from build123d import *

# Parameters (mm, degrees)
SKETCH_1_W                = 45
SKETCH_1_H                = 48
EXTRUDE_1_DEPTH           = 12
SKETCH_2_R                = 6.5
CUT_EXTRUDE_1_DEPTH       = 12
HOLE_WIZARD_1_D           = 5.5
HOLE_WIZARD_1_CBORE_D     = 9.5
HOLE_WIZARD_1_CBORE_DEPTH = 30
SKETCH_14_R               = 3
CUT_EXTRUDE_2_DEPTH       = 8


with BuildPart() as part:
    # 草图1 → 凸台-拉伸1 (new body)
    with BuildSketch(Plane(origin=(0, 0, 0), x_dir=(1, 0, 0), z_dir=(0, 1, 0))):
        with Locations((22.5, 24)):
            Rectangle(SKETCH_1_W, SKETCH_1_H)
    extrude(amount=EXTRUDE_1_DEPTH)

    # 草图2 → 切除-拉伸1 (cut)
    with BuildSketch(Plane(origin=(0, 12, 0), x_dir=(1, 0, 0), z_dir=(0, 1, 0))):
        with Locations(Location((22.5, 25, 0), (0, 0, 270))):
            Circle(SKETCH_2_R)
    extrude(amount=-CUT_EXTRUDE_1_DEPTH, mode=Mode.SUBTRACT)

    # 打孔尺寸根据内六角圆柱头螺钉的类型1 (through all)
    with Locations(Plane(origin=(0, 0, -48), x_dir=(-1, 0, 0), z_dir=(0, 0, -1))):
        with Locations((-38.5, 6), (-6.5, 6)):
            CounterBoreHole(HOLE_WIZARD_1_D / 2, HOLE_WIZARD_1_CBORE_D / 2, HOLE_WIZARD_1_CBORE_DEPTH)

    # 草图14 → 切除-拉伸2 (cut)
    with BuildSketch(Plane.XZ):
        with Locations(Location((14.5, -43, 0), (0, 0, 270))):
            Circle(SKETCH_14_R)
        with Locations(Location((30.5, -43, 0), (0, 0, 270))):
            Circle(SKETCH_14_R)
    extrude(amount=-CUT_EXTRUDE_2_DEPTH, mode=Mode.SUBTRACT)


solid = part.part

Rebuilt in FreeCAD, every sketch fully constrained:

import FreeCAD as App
import Part
import Sketcher

V = App.Vector
Q = App.Units.Quantity

doc = App.newDocument("Part")
body = doc.addObject("PartDesign::Body", "Body")

# Sketch on XZ plane
sketch1 = body.newObject("Sketcher::SketchObject", "Sketch")
sketch1.AttachmentSupport = (doc.getObject("XZ_Plane"), [""])
sketch1.MapMode = "FlatFace"
sketch1.addGeometry([
    Part.LineSegment(V(0, -48, 0), V(0, 0, 0)),
    Part.LineSegment(V(0, 0, 0), V(45, 0, 0)),
    Part.LineSegment(V(45, 0, 0), V(45, -48, 0)),
    Part.LineSegment(V(45, -48, 0), V(0, -48, 0)),
], False)
sketch1.addConstraint([
    Sketcher.Constraint("Coincident", 0, 2, 1, 1),
    Sketcher.Constraint("Coincident", 1, 2, 2, 1),
    Sketcher.Constraint("Coincident", 2, 2, 3, 1),
    Sketcher.Constraint("Coincident", 3, 2, 0, 1),
    Sketcher.Constraint("Vertical", 0),
    Sketcher.Constraint("Horizontal", 1),
    Sketcher.Constraint("Vertical", 2),
    Sketcher.Constraint("Horizontal", 3),
    Sketcher.Constraint("Coincident", 0, 2, -1, 1),
    Sketcher.Constraint("DistanceX", 1, 1, 1, 2, Q("45 mm")),
    Sketcher.Constraint("DistanceY", 0, 1, 0, 2, Q("48 mm")),
])
pad1 = body.newObject("PartDesign::Pad", "Pad")
pad1.Profile = sketch1
pad1.Length = 12
pad1.Reversed = True

# Sketch on XZ plane
sketch2 = body.newObject("Sketcher::SketchObject", "Sketch001")
sketch2.AttachmentSupport = (doc.getObject("XZ_Plane"), [""])
sketch2.MapMode = "FlatFace"
sketch2.AttachmentOffset = App.Placement(V(0, 0, -12), App.Rotation())
sketch2.addGeometry(Part.Circle(V(22.5, -25, 0), V(0, 0, 1), 6.5), False)
sketch2.addConstraint([
    Sketcher.Constraint("Diameter", 0, Q("13 mm")),
    Sketcher.Constraint("DistanceY", 0, 3, -1, 1, Q("25 mm")),
    Sketcher.Constraint("DistanceX", -1, 1, 0, 3, Q("22.5 mm")),
])
pocket1 = body.newObject("PartDesign::Pocket", "Pocket")
pocket1.Profile = sketch2
pocket1.Length = 12
pocket1.Reversed = True

# Sketch on XY plane
sketch3 = body.newObject("Sketcher::SketchObject", "Sketch002")
sketch3.AttachmentSupport = (doc.getObject("XY_Plane"), [""])
sketch3.MapMode = "FlatFace"
sketch3.AttachmentOffset = App.Placement(V(0, 0, -48), App.Rotation())
sketch3.addGeometry([
    Part.Circle(V(38.5, 6, 0), V(0, 0, 1), 2.75),
    Part.Circle(V(6.5, 6, 0), V(0, 0, 1), 2.75),
], False)
sketch3.addConstraint([
    Sketcher.Constraint("Equal", 0, 1),
    Sketcher.Constraint("Horizontal", 0, 3, 1, 3),
    Sketcher.Constraint("Diameter", 0, Q("5.5 mm")),
    Sketcher.Constraint("DistanceY", -1, 1, 0, 3, Q("6 mm")),
    Sketcher.Constraint("DistanceX", 1, 3, 0, 3, Q("32 mm")),
    Sketcher.Constraint("DistanceX", -1, 1, 0, 3, Q("38.5 mm")),
])
doc.recompute()
hole = body.newObject("PartDesign::Hole", "Hole")
hole.Profile = sketch3
hole.ThreadType = "None"
hole.Diameter = 5.5
hole.DepthType = "ThroughAll"
hole.HoleCutType = "Counterbore"
hole.HoleCutDiameter = 9.5
hole.HoleCutDepth = 30
hole.Reversed = True

# Sketch on XZ plane
sketch4 = body.newObject("Sketcher::SketchObject", "Sketch003")
sketch4.AttachmentSupport = (doc.getObject("XZ_Plane"), [""])
sketch4.MapMode = "FlatFace"
sketch4.addGeometry([
    Part.Circle(V(14.5, -43, 0), V(0, 0, 1), 3),
    Part.Circle(V(30.5, -43, 0), V(0, 0, 1), 3),
], False)
sketch4.addConstraint([
    Sketcher.Constraint("Equal", 0, 1),
    Sketcher.Constraint("Horizontal", 0, 3, 1, 3),
    Sketcher.Constraint("Diameter", 0, Q("6 mm")),
    Sketcher.Constraint("DistanceY", 0, 3, -1, 1, Q("43 mm")),
    Sketcher.Constraint("DistanceX", 0, 3, 1, 3, Q("16 mm")),
    Sketcher.Constraint("DistanceX", -1, 1, 0, 3, Q("14.5 mm")),
])
pocket2 = body.newObject("PartDesign::Pocket", "Pocket001")
pocket2.Profile = sketch4
pocket2.Length = 8

doc.recompute()
